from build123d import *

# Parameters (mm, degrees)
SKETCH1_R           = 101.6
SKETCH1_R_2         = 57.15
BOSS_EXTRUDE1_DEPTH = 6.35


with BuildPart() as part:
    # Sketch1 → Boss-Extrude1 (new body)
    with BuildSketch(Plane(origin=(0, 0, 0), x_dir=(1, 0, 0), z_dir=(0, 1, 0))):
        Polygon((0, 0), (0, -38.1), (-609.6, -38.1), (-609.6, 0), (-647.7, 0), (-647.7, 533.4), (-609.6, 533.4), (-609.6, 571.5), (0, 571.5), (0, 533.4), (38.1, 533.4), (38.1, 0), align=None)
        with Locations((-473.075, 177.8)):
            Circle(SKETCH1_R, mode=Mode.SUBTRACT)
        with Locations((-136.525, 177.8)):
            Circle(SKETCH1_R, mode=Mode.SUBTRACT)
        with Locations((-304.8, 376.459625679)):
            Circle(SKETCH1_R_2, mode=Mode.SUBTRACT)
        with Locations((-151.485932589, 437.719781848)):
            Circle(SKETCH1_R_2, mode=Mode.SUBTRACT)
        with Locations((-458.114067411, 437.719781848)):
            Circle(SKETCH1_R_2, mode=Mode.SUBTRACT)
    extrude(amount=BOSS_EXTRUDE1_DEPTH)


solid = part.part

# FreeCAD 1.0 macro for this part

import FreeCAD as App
import Part
import Sketcher
Q = App.Units.Quantity


def add_polygon(sketch, points):
    """Adds a closed chain of lines whose ends are joined by coincident constraints."""
    first, n = sketch.GeometryCount, len(points)
    for a, b in zip(points, points[1:] + points[:1]):
        sketch.addGeometry(Part.LineSegment(App.Vector(*a, 0), App.Vector(*b, 0)), False)
    for i in range(n):
        sketch.addConstraint(Sketcher.Constraint("Coincident", first + i, 2, first + (i + 1) % n, 1))

doc = App.newDocument("Part")
body = doc.addObject("PartDesign::Body", "Body")

# Sketch on XZ plane
sketch1 = doc.addObject("Sketcher::SketchObject", "Sketch")
body.addObject(sketch1)
sketch1.AttachmentSupport = (doc.XZ_Plane, [""])
sketch1.MapMode = "FlatFace"
add_polygon(sketch1, [(0, 38), (0, 0), (38, 0), (38, -533), (0, -533), (0, -572), (-610, -572), (-610, -533), (-648, -533), (-648, 0), (-610, 0), (-610, 38)])  # lines 0-11
sketch1.addGeometry(Part.Circle(App.Vector(-137, -178, 0), App.Vector(0, 0, 1), 102), False)  # 12
sketch1.addGeometry(Part.Circle(App.Vector(-473, -178, 0), App.Vector(0, 0, 1), 102), False)  # 13
sketch1.addGeometry(Part.Circle(App.Vector(-151, -438, 0), App.Vector(0, 0, 1), 57), False)  # 14
sketch1.addGeometry(Part.Circle(App.Vector(-305, -376, 0), App.Vector(0, 0, 1), 57), False)  # 15
sketch1.addGeometry(Part.Circle(App.Vector(-458, -438, 0), App.Vector(0, 0, 1), 57), False)  # 16
sketch1.addConstraint([
    Sketcher.Constraint("Vertical", 0),
    Sketcher.Constraint("Horizontal", 1),
    Sketcher.Constraint("Vertical", 2),
    Sketcher.Constraint("Horizontal", 3),
    Sketcher.Constraint("Vertical", 4),
    Sketcher.Constraint("Horizontal", 5),
    Sketcher.Constraint("Vertical", 6),
    Sketcher.Constraint("Horizontal", 7),
    Sketcher.Constraint("Vertical", 8),
    Sketcher.Constraint("Horizontal", 9),
    Sketcher.Constraint("Vertical", 10),
    Sketcher.Constraint("Horizontal", 11),
    Sketcher.Constraint("Coincident", 0, 2, -1, 1),
    Sketcher.Constraint("Equal", 12, 13),
    Sketcher.Constraint("Equal", 14, 15),
    Sketcher.Constraint("Equal", 15, 16),
    Sketcher.Constraint("PointOnObject", 3, 2, -2),
    Sketcher.Constraint("PointOnObject", 8, 2, -1),
    Sketcher.Constraint("Horizontal", 12, 3, 13, 3),
    Sketcher.Constraint("Horizontal", 14, 3, 16, 3),
    Sketcher.Constraint("Horizontal", 3, 2, 6, 2),
    Sketcher.Constraint("Vertical", 6, 2, 9, 2),
    Sketcher.Constraint("Equal", 3, 7),
    Sketcher.Constraint("Equal", 9, 0),
    Sketcher.Constraint("Equal", 0, 4),
    Sketcher.Constraint("Diameter", 12, Q("8 in")),
    Sketcher.Constraint("Diameter", 14, Q("4.5 in")),
    Sketcher.Constraint("DistanceX", 5, 2, 5, 1, Q("24 in")),
    Sketcher.Constraint("DistanceY", 2, 2, 2, 1, Q("21 in")),
    Sketcher.Constraint("DistanceX", 1, 1, 1, 2, Q("1.5 in")),
    Sketcher.Constraint("DistanceY", 12, 3, -1, 1, Q("7 in")),
    Sketcher.Constraint("DistanceX", 15, 3, -1, 1, Q("12 in")),
    Sketcher.Constraint("DistanceX", 13, 3, 12, 3, Q("13.25 in")),
    Sketcher.Constraint("DistanceX", 12, 3, -1, 1, Q("5.375 in")),
    Sketcher.Constraint("DistanceY", 14, 3, -1, 1, 437.719782),
    Sketcher.Constraint("DistanceX", 14, 3, -1, 1, 151.485933),
    Sketcher.Constraint("DistanceY", 15, 3, -1, 1, 376.459626),
    Sketcher.Constraint("DistanceX", 16, 3, -1, 1, 458.114067),
])
pad1 = doc.addObject("PartDesign::Pad", "Pad")
body.addObject(pad1)
pad1.Profile = sketch1
pad1.Length = Q("0.25 in")
pad1.Reversed = True

doc.recompute()
